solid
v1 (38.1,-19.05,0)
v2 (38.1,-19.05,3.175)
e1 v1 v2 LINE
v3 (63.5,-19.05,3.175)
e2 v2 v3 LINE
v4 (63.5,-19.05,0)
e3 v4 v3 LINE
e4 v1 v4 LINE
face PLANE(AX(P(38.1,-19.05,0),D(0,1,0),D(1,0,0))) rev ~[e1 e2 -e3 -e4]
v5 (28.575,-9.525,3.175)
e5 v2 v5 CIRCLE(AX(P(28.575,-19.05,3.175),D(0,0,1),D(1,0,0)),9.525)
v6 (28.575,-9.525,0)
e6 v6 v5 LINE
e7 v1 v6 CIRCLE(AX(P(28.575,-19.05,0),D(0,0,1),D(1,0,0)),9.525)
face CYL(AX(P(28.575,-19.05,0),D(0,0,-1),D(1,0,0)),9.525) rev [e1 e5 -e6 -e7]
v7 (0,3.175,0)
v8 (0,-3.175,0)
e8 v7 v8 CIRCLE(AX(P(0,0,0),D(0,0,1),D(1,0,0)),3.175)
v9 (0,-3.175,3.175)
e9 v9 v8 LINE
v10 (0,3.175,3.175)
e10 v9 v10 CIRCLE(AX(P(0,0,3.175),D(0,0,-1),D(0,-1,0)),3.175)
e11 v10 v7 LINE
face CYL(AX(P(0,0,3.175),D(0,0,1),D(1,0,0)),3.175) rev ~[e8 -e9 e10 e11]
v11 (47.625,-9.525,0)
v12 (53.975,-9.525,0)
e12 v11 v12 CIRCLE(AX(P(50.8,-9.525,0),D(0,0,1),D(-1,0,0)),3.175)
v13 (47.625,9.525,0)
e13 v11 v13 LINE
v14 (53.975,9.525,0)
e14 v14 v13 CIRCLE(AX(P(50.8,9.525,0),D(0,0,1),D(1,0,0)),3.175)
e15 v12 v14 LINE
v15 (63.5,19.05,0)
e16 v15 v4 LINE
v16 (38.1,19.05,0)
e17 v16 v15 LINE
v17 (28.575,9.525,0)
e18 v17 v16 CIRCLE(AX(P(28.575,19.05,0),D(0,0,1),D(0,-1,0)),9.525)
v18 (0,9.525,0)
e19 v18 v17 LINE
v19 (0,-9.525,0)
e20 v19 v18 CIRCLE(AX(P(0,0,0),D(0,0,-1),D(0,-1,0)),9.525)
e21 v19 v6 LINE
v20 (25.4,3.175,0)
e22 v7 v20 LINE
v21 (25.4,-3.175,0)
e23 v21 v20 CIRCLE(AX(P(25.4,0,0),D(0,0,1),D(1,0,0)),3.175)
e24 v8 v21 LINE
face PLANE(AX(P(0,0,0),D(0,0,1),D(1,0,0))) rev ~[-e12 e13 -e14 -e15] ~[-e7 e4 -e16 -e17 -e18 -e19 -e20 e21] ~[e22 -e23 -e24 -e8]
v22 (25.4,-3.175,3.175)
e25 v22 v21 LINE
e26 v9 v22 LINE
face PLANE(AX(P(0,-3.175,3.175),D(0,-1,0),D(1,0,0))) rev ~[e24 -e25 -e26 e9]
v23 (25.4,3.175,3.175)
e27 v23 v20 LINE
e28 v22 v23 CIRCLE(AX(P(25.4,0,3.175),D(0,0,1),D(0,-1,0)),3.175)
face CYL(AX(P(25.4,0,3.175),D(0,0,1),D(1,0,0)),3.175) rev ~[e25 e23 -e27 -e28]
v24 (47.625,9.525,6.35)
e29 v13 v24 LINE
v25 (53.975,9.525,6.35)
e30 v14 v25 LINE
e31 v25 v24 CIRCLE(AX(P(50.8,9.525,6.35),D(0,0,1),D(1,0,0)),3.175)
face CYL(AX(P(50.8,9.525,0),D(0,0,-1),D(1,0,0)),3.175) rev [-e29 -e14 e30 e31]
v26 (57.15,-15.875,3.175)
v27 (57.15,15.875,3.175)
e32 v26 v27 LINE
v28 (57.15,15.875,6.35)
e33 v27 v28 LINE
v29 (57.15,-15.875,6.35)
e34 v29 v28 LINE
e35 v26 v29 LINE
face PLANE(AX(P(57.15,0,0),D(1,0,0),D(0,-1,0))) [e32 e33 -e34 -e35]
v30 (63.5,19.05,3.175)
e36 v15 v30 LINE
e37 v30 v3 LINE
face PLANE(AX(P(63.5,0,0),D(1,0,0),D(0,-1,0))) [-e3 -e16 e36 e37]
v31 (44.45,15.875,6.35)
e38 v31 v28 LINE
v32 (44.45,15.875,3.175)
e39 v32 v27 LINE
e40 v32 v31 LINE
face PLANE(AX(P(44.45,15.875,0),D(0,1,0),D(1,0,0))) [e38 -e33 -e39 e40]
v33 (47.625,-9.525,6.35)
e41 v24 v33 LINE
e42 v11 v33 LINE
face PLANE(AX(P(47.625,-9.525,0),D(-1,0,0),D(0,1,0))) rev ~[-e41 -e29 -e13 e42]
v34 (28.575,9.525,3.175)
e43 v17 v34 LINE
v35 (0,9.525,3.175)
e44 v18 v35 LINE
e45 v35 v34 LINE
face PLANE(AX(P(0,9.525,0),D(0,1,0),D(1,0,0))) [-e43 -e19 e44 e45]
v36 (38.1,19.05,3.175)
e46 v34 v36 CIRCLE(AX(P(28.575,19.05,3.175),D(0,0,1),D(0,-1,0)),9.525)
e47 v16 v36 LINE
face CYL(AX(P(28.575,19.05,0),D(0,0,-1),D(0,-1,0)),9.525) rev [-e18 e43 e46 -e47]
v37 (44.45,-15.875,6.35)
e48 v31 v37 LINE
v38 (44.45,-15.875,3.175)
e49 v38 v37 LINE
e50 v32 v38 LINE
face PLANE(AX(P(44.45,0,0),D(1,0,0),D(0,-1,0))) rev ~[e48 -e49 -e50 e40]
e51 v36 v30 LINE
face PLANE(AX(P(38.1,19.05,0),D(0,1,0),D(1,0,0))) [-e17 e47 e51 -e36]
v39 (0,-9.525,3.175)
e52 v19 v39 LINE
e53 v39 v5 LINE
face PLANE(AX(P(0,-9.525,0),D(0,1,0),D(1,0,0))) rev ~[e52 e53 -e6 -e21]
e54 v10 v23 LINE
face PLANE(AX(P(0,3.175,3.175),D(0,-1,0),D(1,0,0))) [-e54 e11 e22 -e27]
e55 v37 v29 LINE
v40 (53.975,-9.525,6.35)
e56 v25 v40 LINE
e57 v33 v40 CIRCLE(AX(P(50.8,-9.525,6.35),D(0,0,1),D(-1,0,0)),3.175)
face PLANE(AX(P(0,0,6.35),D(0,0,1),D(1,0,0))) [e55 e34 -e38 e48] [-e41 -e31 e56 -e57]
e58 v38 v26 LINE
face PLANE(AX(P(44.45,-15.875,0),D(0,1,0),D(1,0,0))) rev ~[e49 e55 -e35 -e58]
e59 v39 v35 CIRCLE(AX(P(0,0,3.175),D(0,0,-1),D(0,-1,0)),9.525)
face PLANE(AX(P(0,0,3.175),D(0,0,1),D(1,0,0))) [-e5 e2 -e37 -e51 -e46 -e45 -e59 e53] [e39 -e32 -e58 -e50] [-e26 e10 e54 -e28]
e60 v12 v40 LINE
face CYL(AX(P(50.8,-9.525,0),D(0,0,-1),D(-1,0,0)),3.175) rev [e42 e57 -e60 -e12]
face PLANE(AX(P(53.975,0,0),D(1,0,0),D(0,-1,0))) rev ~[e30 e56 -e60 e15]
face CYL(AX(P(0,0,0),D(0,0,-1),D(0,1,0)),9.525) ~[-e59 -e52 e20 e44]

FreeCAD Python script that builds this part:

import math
import FreeCAD as App
import Part
import Sketcher

V = App.Vector
Q = App.Units.Quantity


def add_polygon(sketch, points):
    """Adds a closed chain of lines whose ends are joined by coincident constraints."""
    first, n = sketch.GeometryCount, len(points)
    for a, b in zip(points, points[1:] + points[:1]):
        sketch.addGeometry(Part.LineSegment(App.Vector(*a, 0), App.Vector(*b, 0)), False)
    for i in range(n):
        sketch.addConstraint(Sketcher.Constraint("Coincident", first + i, 2, first + (i + 1) % n, 1))

doc = App.newDocument("Part")
params = doc.addObject("Spreadsheet::Sheet", "Params")
for row, (alias, value) in enumerate([
    ("sketch1_width", "1 in"),
    ("sketch1_width2", "0.5 in"),
    ("sketch1_height", "1.5 in"),
    ("sketch1_height2", "1.25 in"),
    ("pad1_length", "0.125 in"),
    ("sketch2_width", "0.5 in"),
    ("sketch2_radius", "0.125 in"),
    ("sketch2_height", "1.25 in"),
    ("pad2_length", "0.25 in"),
    ("sketch3_width", "1 in"),
    ("sketch3_radius", "0.125 in"),
], start=1):
    params.set(f"A{row}", alias)
    params.set(f"B{row}", "=" + value)
    params.setAlias(f"B{row}", alias)

body = doc.addObject("PartDesign::Body", "Body")

# Sketch on XY plane
sketch1 = body.newObject("Sketcher::SketchObject", "Sketch")
sketch1.AttachmentSupport = (doc.getObject("XY_Plane"), [""])
sketch1.MapMode = "FlatFace"
sketch1.addGeometry(Part.LineSegment(V(0, -10, 0), V(29, -10, 0)), False)  # 0
sketch1.addGeometry(Part.ArcOfCircle(Part.Circle(V(29, -19, 0), V(0, 0, 1), 10), math.radians(0), math.radians(90)), False)  # 1
sketch1.addGeometry(Part.LineSegment(V(38, -19, 0), V(64, -19, 0)), False)  # 2
sketch1.addGeometry(Part.LineSegment(V(64, -19, 0), V(64, 19, 0)), False)  # 3
sketch1.addGeometry(Part.LineSegment(V(64, 19, 0), V(38, 19, 0)), False)  # 4
sketch1.addGeometry(Part.ArcOfCircle(Part.Circle(V(29, 19, 0), V(0, 0, 1), 10), math.radians(-90), math.radians(0)), False)  # 5
sketch1.addGeometry(Part.LineSegment(V(29, 10, 0), V(0, 10, 0)), False)  # 6
sketch1.addGeometry(Part.ArcOfCircle(Part.Circle(V(0, 0, 0), V(0, 0, 1), 10), math.radians(90), math.radians(270)), False)  # 7
add_polygon(sketch1, [(44, -16), (44, 16), (57, 16), (57, -16)])  # lines 8-11
sketch1.addConstraint(Sketcher.Constraint("Tangent", 0, 2, 1, 2))
sketch1.addConstraint(Sketcher.Constraint("Coincident", 1, 1, 2, 1))
sketch1.addConstraint(Sketcher.Constraint("Coincident", 2, 2, 3, 1))
sketch1.addConstraint(Sketcher.Constraint("Coincident", 3, 2, 4, 1))
sketch1.addConstraint(Sketcher.Constraint("Coincident", 4, 2, 5, 2))
sketch1.addConstraint(Sketcher.Constraint("Tangent", 5, 1, 6, 1))
sketch1.addConstraint(Sketcher.Constraint("Tangent", 6, 2, 7, 1))
sketch1.addConstraint(Sketcher.Constraint("Tangent", 7, 2, 0, 1))
sketch1.addConstraint(Sketcher.Constraint("Horizontal", 0))
sketch1.addConstraint(Sketcher.Constraint("Horizontal", 2))
sketch1.addConstraint(Sketcher.Constraint("Vertical", 3))
sketch1.addConstraint(Sketcher.Constraint("Horizontal", 4))
sketch1.addConstraint(Sketcher.Constraint("Horizontal", 6))
sketch1.addConstraint(Sketcher.Constraint("Vertical", 8))
sketch1.addConstraint(Sketcher.Constraint("Horizontal", 9))
sketch1.addConstraint(Sketcher.Constraint("Vertical", 10))
sketch1.addConstraint(Sketcher.Constraint("Horizontal", 11))
sketch1.addConstraint(Sketcher.Constraint("Coincident", 7, 3, -1, 1))
sketch1.addConstraint(Sketcher.Constraint("Equal", 1, 5))
sketch1.addConstraint(Sketcher.Constraint("Equal", 5, 7))
sketch1.addConstraint(Sketcher.Constraint("Symmetric", 1, 1, 4, 2, -1))
sketch1.addConstraint(Sketcher.Constraint("Horizontal", 5, 3, 3, 2))
sketch1.addConstraint(Sketcher.Constraint("DistanceX", 2, 1, 2, 2, Q("1 in")))
sketch1.addConstraint(Sketcher.Constraint("DistanceX", 9, 1, 9, 2, Q("0.5 in")))
sketch1.addConstraint(Sketcher.Constraint("DistanceY", 3, 1, 3, 2, Q("1.5 in")))
sketch1.addConstraint(Sketcher.Constraint("DistanceY", 0, 2, 8, 2, Q("1 in")))
sketch1.addConstraint(Sketcher.Constraint("DistanceY", 8, 1, 8, 2, Q("1.25 in")))
sketch1.addConstraint(Sketcher.Constraint("DistanceX", -1, 1, 1, 1, Q("1.5 in")))
sketch1.addConstraint(Sketcher.Constraint("DistanceX", 4, 2, 8, 2, Q("0.25 in")))
sketch1.setExpression("Constraints[26]", "Params.sketch1_width")
sketch1.setExpression("Constraints[27]", "Params.sketch1_width2")
sketch1.setExpression("Constraints[28]", "Params.sketch1_height")
sketch1.setExpression("Constraints[30]", "Params.sketch1_height2")
pad1 = body.newObject("PartDesign::Pad", "Pad")
pad1.Profile = sketch1
pad1.setExpression("Length", "Params.pad1_length")

# Sketch on XY plane
sketch2 = body.newObject("Sketcher::SketchObject", "Sketch001")
sketch2.AttachmentSupport = (doc.getObject("XY_Plane"), [""])
sketch2.MapMode = "FlatFace"
add_polygon(sketch2, [(57.1, -15.9), (57.1, 15.9), (44.5, 15.9), (44.5, -15.9)])  # lines 0-3
sketch2.addGeometry(Part.LineSegment(V(47.6, -9.5, 0), V(47.6, 9.5, 0)), False)  # 4
sketch2.addGeometry(Part.ArcOfCircle(Part.Circle(V(50.8, 9.5, 0), V(0, 0, 1), 3.2), math.radians(0), math.radians(180)), False)  # 5
sketch2.addGeometry(Part.LineSegment(V(54, 9.5, 0), V(54, -9.5, 0)), False)  # 6
sketch2.addGeometry(Part.ArcOfCircle(Part.Circle(V(50.8, -9.5, 0), V(0, 0, 1), 3.2), math.radians(180), math.radians(360)), False)  # 7
sketch2.addConstraint(Sketcher.Constraint("Tangent", 4, 2, 5, 2))
sketch2.addConstraint(Sketcher.Constraint("Tangent", 5, 1, 6, 1))
sketch2.addConstraint(Sketcher.Constraint("Tangent", 6, 2, 7, 2))
sketch2.addConstraint(Sketcher.Constraint("Tangent", 7, 1, 4, 1))
sketch2.addConstraint(Sketcher.Constraint("Vertical", 0))
sketch2.addConstraint(Sketcher.Constraint("Horizontal", 1))
sketch2.addConstraint(Sketcher.Constraint("Vertical", 2))
sketch2.addConstraint(Sketcher.Constraint("Horizontal", 3))
sketch2.addConstraint(Sketcher.Constraint("Vertical", 4))
sketch2.addConstraint(Sketcher.Constraint("Vertical", 6))
sketch2.addConstraint(Sketcher.Constraint("DistanceX", 1, 2, 1, 1, Q("0.5 in")))
sketch2.addConstraint(Sketcher.Constraint("Radius", 5, Q("0.125 in")))
sketch2.addConstraint(Sketcher.Constraint("DistanceY", 7, 3, 0, 2, Q("1 in")))
sketch2.addConstraint(Sketcher.Constraint("DistanceY", 2, 2, 5, 3, Q("1 in")))
sketch2.addConstraint(Sketcher.Constraint("DistanceY", 0, 1, 0, 2, Q("1.25 in")))
sketch2.addConstraint(Sketcher.Constraint("DistanceX", 5, 3, 0, 2, Q("0.25 in")))
sketch2.addConstraint(Sketcher.Constraint("DistanceX", -1, 1, 5, 3, Q("2 in")))
sketch2.addConstraint(Sketcher.Constraint("DistanceY", -1, 1, 5, 3, Q("0.375 in")))
sketch2.setExpression("Constraints[14]", "Params.sketch2_width")
sketch2.setExpression("Constraints[15]", "Params.sketch2_radius")
sketch2.setExpression("Constraints[18]", "Params.sketch2_height")
pad2 = body.newObject("PartDesign::Pad", "Pad001")
pad2.Profile = sketch2
pad2.setExpression("Length", "Params.pad2_length")

# Sketch on XY plane
sketch3 = body.newObject("Sketcher::SketchObject", "Sketch002")
sketch3.AttachmentSupport = (doc.getObject("XY_Plane"), [""])
sketch3.MapMode = "FlatFace"
sketch3.AttachmentOffset = App.Placement(V(0, 0, 0.125 * 25.4), App.Rotation())
sketch3.addGeometry(Part.ArcOfCircle(Part.Circle(V(0, 0, 0), V(0, 0, 1), 3.2), math.radians(90), math.radians(270)), False)
sketch3.addGeometry(Part.LineSegment(V(0, -3.2, 0), V(25.4, -3.2, 0)), False)
sketch3.addGeometry(Part.ArcOfCircle(Part.Circle(V(25.4, 0, 0), V(0, 0, 1), 3.2), math.radians(-90), math.radians(90)), False)
sketch3.addGeometry(Part.LineSegment(V(25.4, 3.2, 0), V(0, 3.2, 0)), False)
sketch3.addConstraint(Sketcher.Constraint("Tangent", 0, 2, 1, 1))
sketch3.addConstraint(Sketcher.Constraint("Tangent", 1, 2, 2, 1))
sketch3.addConstraint(Sketcher.Constraint("Tangent", 2, 2, 3, 1))
sketch3.addConstraint(Sketcher.Constraint("Tangent", 3, 2, 0, 1))
sketch3.addConstraint(Sketcher.Constraint("Horizontal", 1))
sketch3.addConstraint(Sketcher.Constraint("Horizontal", 3))
sketch3.addConstraint(Sketcher.Constraint("Coincident", 0, 3, -1, 1))
sketch3.addConstraint(Sketcher.Constraint("DistanceX", 1, 1, 1, 2, Q("1 in")))
sketch3.addConstraint(Sketcher.Constraint("Radius", 0, Q("0.125 in")))
sketch3.setExpression("Constraints[7]", "Params.sketch3_width")
sketch3.setExpression("Constraints[8]", "Params.sketch3_radius")
pocket1 = body.newObject("PartDesign::Pocket", "Pocket")
pocket1.Profile = sketch3
pocket1.Type = "ThroughAll"

doc.recompute()
